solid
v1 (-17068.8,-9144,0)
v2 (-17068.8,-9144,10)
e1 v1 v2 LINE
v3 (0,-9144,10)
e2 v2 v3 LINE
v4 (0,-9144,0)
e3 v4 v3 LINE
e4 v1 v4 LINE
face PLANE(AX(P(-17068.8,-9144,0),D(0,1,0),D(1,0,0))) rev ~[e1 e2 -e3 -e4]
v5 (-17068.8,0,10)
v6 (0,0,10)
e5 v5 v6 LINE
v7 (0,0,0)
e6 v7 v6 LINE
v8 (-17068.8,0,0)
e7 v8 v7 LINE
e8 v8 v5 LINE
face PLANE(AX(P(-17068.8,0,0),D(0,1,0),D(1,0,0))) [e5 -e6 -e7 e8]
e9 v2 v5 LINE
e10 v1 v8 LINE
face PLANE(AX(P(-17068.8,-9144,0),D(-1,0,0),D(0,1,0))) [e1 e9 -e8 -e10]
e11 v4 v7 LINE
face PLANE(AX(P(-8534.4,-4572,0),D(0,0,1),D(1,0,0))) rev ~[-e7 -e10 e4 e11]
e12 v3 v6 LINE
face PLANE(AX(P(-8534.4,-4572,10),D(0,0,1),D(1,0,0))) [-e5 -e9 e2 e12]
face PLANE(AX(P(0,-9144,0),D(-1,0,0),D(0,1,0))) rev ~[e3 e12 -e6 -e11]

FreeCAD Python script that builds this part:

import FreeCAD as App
import Part
import Sketcher

V = App.Vector
Q = App.Units.Quantity


def add_polygon(sketch, points):
    """Adds a closed chain of lines whose ends are joined by coincident constraints."""
    first, n = sketch.GeometryCount, len(points)
    for a, b in zip(points, points[1:] + points[:1]):
        sketch.addGeometry(Part.LineSegment(App.Vector(*a, 0), App.Vector(*b, 0)), False)
    for i in range(n):
        sketch.addConstraint(Sketcher.Constraint("Coincident", first + i, 2, first + (i + 1) % n, 1))

doc = App.newDocument("Part")
body = doc.addObject("PartDesign::Body", "Body")

sketch1 = body.newObject("Sketcher::SketchObject", "Sketch")
sketch1.AttachmentSupport = (doc.getObject("XY_Plane"), [""])
sketch1.MapMode = "FlatFace"
add_polygon(sketch1, [(-17068.8, 0), (-17068.8, -9144), (0, -9144), (0, 0)])
sketch1.addConstraint([
    Sketcher.Constraint("Vertical", 0),
    Sketcher.Constraint("Horizontal", 1),
    Sketcher.Constraint("Vertical", 2),
    Sketcher.Constraint("Horizontal", 3),
    Sketcher.Constraint("Coincident", 2, 2, -1, 1),
    Sketcher.Constraint("DistanceX", 1, 1, 1, 2, Q("672 in")),
    Sketcher.Constraint("DistanceY", 0, 2, 0, 1, Q("360 in")),
])
pad1 = body.newObject("PartDesign::Pad", "Pad")
pad1.Profile = sketch1
pad1.Length = 10

doc.recompute()
